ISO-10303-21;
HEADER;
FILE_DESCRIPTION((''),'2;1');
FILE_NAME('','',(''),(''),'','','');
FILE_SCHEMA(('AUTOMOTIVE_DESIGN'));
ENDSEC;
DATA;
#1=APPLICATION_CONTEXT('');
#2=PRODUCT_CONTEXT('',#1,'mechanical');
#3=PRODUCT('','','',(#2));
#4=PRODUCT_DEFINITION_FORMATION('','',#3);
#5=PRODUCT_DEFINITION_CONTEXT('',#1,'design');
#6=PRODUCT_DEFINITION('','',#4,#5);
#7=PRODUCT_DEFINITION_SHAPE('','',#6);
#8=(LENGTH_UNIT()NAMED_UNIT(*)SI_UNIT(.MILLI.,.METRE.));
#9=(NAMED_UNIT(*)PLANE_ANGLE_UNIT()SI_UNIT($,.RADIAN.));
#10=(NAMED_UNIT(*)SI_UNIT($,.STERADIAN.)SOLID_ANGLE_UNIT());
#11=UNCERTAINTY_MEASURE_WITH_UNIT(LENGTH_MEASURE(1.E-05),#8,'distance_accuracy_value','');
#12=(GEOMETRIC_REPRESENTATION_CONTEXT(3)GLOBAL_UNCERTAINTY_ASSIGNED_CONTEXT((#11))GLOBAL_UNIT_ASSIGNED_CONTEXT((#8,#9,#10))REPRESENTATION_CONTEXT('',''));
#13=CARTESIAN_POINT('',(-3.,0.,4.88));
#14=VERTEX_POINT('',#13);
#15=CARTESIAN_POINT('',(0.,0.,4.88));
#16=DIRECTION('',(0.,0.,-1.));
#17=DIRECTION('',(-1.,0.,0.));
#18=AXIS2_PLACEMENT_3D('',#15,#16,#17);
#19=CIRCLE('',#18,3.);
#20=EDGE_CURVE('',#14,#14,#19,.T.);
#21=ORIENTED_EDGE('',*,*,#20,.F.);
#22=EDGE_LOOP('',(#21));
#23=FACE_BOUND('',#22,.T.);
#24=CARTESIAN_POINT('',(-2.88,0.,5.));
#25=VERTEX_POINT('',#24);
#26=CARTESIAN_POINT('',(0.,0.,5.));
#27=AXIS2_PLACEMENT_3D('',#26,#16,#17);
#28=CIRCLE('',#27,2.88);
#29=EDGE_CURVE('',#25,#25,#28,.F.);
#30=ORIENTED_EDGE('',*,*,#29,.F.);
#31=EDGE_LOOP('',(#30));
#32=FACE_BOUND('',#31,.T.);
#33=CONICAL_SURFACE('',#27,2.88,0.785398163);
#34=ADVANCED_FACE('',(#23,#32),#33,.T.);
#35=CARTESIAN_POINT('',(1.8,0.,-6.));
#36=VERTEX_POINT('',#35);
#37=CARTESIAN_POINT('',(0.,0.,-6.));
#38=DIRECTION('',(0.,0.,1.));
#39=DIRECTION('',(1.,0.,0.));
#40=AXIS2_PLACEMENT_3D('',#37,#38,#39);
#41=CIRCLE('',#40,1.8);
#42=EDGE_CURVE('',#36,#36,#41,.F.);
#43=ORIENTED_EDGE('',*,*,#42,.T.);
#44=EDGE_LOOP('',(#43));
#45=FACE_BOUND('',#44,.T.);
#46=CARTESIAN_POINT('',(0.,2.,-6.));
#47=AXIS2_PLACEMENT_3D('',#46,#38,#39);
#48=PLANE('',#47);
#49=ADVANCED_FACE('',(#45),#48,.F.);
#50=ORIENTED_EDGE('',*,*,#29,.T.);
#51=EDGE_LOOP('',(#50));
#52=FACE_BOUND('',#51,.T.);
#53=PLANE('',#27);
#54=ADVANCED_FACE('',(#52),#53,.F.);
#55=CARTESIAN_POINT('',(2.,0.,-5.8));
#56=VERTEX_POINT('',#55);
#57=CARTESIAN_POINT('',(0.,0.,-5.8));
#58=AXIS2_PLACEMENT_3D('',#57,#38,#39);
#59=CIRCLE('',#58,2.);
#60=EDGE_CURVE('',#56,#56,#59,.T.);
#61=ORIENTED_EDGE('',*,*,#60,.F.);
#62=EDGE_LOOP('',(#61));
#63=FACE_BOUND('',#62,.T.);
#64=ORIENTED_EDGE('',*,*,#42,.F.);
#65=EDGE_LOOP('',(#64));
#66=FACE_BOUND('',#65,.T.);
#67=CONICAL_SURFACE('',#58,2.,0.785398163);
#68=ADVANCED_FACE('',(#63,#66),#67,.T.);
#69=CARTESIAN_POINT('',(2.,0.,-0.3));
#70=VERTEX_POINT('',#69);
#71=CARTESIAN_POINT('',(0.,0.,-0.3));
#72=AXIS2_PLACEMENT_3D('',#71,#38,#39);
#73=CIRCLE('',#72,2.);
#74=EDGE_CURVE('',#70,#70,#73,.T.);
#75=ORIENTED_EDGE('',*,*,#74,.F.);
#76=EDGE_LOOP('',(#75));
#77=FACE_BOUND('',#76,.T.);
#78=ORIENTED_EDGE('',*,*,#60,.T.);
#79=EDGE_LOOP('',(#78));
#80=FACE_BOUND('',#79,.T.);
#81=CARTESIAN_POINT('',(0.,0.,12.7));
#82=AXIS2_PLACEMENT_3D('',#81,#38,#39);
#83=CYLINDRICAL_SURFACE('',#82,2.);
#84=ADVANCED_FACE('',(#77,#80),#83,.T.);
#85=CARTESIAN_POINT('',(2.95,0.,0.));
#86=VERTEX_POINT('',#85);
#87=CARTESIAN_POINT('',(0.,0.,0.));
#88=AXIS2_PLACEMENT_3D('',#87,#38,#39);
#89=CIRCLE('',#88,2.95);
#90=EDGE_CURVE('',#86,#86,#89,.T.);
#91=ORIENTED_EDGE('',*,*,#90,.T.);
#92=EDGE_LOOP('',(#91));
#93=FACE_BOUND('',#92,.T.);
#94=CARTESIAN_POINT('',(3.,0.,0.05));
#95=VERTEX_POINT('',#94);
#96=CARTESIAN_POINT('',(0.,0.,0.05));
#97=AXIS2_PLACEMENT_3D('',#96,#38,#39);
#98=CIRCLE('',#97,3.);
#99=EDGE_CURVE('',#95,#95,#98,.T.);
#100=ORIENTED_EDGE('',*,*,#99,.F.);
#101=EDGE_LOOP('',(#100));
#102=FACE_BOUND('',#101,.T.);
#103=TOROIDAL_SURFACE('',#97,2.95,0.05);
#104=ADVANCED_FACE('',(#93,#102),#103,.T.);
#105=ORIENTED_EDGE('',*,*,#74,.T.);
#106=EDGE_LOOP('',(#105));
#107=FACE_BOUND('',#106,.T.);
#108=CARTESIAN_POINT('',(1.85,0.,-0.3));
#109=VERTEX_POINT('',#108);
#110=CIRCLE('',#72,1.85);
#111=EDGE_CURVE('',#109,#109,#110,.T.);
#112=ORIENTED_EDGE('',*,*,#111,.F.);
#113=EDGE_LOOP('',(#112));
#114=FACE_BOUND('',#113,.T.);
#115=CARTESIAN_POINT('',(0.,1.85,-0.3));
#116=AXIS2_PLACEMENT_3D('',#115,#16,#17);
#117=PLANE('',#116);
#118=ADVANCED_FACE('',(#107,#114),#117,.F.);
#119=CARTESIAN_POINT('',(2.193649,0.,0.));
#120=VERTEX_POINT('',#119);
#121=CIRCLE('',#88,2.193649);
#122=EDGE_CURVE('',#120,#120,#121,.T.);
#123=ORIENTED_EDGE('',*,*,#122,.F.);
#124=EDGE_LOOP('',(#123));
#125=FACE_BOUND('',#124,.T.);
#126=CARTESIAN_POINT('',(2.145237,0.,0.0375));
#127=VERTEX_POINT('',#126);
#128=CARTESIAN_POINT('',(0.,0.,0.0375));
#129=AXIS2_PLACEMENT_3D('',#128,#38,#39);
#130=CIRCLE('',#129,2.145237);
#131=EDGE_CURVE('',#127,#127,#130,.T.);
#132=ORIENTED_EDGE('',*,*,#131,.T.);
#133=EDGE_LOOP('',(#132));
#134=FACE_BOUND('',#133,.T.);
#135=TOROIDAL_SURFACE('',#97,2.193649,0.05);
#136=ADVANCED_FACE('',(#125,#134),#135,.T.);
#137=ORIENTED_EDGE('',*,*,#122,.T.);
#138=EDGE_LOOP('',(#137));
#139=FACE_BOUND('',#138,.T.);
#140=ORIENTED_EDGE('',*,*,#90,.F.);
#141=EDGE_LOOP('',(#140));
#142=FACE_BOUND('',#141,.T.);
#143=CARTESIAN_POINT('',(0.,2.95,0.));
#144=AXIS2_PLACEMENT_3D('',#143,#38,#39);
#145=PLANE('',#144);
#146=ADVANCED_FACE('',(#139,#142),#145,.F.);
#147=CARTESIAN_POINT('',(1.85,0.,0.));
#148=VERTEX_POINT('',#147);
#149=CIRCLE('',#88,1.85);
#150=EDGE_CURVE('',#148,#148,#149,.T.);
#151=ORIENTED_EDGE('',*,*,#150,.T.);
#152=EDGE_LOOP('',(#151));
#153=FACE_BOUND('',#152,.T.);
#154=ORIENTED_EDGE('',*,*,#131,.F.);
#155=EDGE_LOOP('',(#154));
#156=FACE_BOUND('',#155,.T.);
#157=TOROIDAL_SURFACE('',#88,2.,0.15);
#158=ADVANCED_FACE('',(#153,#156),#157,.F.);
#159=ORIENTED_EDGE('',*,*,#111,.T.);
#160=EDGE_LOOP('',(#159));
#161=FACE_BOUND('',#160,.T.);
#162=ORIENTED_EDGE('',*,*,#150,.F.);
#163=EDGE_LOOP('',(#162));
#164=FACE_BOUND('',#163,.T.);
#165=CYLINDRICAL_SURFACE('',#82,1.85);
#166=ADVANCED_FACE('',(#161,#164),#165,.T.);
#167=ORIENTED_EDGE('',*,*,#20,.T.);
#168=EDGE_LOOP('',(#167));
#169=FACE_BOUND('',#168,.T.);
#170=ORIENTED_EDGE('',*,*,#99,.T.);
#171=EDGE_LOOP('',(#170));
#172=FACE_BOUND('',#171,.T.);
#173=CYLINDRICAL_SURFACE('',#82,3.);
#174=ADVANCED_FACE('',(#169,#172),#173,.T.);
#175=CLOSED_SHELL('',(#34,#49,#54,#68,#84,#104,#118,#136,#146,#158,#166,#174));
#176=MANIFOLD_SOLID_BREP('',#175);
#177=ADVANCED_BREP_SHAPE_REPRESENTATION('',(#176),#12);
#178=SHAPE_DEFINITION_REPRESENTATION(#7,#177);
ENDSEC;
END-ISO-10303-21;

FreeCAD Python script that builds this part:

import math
import FreeCAD as App
import Part
import Sketcher

V = App.Vector


def edges_at(feature, points):
    """Names of the edges that pass closest to the given points."""
    edges = feature.Shape.Edges
    near = lambda p: min(range(len(edges)), key=lambda i: edges[i].distToShape(Part.Vertex(*p))[0])
    return sorted({f"Edge{near(p) + 1}" for p in points})

doc = App.newDocument("Part")
body = doc.addObject("PartDesign::Body", "Body")

sketch1 = body.newObject("Sketcher::SketchObject", "Sketch")
sketch1.AttachmentSupport = (doc.getObject("YZ_Plane"), [""])
sketch1.MapMode = "FlatFace"
sketch1.addGeometry([
    Part.LineSegment(V(3, 5, 0), V(0, 5, 0)),
    Part.LineSegment(V(0, 5, 0), V(0, -6, 0)),
    Part.LineSegment(V(0, -6, 0), V(2, -6, 0)),
    Part.LineSegment(V(2, -6, 0), V(2, -0.3, 0)),
    Part.LineSegment(V(2, -0.3, 0), V(1.85, -0.3, 0)),
    Part.LineSegment(V(1.85, -0.3, 0), V(1.85, 0, 0)),
    Part.ArcOfCircle(Part.Circle(V(2, 0, 0), V(0, 0, 1), 0.15), math.radians(14), math.radians(180)),
    Part.ArcOfCircle(Part.Circle(V(2.19, 0.05, 0), V(0, 0, 1), 0.05), math.radians(-166), math.radians(-90)),
    Part.LineSegment(V(2.19, 0, 0), V(2.95, 0, 0)),
    Part.ArcOfCircle(Part.Circle(V(2.95, 0.05, 0), V(0, 0, 1), 0.05), math.radians(-90), math.radians(0)),
    Part.LineSegment(V(3, 0.05, 0), V(3, 5, 0)),
], False)
sketch1.addConstraint([
    Sketcher.Constraint("Coincident", 0, 2, 1, 1),
    Sketcher.Constraint("Coincident", 1, 2, 2, 1),
    Sketcher.Constraint("Coincident", 2, 2, 3, 1),
    Sketcher.Constraint("Coincident", 3, 2, 4, 1),
    Sketcher.Constraint("Coincident", 4, 2, 5, 1),
    Sketcher.Constraint("Tangent", 5, 2, 6, 2),
    Sketcher.Constraint("Tangent", 6, 1, 7, 1),
    Sketcher.Constraint("Tangent", 7, 2, 8, 1),
    Sketcher.Constraint("Tangent", 8, 2, 9, 1),
    Sketcher.Constraint("Tangent", 9, 2, 10, 1),
    Sketcher.Constraint("Coincident", 10, 2, 0, 1),
    Sketcher.Constraint("Horizontal", 0),
    Sketcher.Constraint("Vertical", 1),
    Sketcher.Constraint("Horizontal", 2),
    Sketcher.Constraint("Vertical", 3),
    Sketcher.Constraint("Horizontal", 4),
    Sketcher.Constraint("Vertical", 5),
    Sketcher.Constraint("Horizontal", 8),
    Sketcher.Constraint("Vertical", 10),
    Sketcher.Constraint("Equal", 7, 9),
    Sketcher.Constraint("PointOnObject", 6, 3, -1),
    Sketcher.Constraint("PointOnObject", 0, 2, -2),
    Sketcher.Constraint("PointOnObject", 7, 2, -1),
    Sketcher.Constraint("Vertical", 6, 3, 2, 2),
    Sketcher.Constraint("DistanceX", 0, 2, 0, 1, 3.0),
    Sketcher.Constraint("DistanceX", 2, 1, 2, 2, 2.0),
    Sketcher.Constraint("DistanceY", 1, 2, 1, 1, 11.0),
    Sketcher.Constraint("Radius", 6, 0.15),
    Sketcher.Constraint("Radius", 7, 0.05),
    Sketcher.Constraint("DistanceY", 3, 1, 3, 2, 5.7),
    Sketcher.Constraint("DistanceY", 5, 1, 5, 2, 0.3),
])
revolution = body.newObject("PartDesign::Revolution", "Revolution")
revolution.Profile = sketch1
revolution.ReferenceAxis = (sketch1, ["V_Axis"])
revolution.Angle = 360
doc.recompute()

chamfer = body.newObject("PartDesign::Chamfer", "Chamfer")
chamfer.Base = (revolution, edges_at(revolution, [(0, -3, 5)]))
chamfer.Size = 0.12
doc.recompute()

chamfer2 = body.newObject("PartDesign::Chamfer", "Chamfer001")
chamfer2.Base = (chamfer, edges_at(chamfer, [(0, -2, -6)]))
chamfer2.Size = 0.2

doc.recompute()
